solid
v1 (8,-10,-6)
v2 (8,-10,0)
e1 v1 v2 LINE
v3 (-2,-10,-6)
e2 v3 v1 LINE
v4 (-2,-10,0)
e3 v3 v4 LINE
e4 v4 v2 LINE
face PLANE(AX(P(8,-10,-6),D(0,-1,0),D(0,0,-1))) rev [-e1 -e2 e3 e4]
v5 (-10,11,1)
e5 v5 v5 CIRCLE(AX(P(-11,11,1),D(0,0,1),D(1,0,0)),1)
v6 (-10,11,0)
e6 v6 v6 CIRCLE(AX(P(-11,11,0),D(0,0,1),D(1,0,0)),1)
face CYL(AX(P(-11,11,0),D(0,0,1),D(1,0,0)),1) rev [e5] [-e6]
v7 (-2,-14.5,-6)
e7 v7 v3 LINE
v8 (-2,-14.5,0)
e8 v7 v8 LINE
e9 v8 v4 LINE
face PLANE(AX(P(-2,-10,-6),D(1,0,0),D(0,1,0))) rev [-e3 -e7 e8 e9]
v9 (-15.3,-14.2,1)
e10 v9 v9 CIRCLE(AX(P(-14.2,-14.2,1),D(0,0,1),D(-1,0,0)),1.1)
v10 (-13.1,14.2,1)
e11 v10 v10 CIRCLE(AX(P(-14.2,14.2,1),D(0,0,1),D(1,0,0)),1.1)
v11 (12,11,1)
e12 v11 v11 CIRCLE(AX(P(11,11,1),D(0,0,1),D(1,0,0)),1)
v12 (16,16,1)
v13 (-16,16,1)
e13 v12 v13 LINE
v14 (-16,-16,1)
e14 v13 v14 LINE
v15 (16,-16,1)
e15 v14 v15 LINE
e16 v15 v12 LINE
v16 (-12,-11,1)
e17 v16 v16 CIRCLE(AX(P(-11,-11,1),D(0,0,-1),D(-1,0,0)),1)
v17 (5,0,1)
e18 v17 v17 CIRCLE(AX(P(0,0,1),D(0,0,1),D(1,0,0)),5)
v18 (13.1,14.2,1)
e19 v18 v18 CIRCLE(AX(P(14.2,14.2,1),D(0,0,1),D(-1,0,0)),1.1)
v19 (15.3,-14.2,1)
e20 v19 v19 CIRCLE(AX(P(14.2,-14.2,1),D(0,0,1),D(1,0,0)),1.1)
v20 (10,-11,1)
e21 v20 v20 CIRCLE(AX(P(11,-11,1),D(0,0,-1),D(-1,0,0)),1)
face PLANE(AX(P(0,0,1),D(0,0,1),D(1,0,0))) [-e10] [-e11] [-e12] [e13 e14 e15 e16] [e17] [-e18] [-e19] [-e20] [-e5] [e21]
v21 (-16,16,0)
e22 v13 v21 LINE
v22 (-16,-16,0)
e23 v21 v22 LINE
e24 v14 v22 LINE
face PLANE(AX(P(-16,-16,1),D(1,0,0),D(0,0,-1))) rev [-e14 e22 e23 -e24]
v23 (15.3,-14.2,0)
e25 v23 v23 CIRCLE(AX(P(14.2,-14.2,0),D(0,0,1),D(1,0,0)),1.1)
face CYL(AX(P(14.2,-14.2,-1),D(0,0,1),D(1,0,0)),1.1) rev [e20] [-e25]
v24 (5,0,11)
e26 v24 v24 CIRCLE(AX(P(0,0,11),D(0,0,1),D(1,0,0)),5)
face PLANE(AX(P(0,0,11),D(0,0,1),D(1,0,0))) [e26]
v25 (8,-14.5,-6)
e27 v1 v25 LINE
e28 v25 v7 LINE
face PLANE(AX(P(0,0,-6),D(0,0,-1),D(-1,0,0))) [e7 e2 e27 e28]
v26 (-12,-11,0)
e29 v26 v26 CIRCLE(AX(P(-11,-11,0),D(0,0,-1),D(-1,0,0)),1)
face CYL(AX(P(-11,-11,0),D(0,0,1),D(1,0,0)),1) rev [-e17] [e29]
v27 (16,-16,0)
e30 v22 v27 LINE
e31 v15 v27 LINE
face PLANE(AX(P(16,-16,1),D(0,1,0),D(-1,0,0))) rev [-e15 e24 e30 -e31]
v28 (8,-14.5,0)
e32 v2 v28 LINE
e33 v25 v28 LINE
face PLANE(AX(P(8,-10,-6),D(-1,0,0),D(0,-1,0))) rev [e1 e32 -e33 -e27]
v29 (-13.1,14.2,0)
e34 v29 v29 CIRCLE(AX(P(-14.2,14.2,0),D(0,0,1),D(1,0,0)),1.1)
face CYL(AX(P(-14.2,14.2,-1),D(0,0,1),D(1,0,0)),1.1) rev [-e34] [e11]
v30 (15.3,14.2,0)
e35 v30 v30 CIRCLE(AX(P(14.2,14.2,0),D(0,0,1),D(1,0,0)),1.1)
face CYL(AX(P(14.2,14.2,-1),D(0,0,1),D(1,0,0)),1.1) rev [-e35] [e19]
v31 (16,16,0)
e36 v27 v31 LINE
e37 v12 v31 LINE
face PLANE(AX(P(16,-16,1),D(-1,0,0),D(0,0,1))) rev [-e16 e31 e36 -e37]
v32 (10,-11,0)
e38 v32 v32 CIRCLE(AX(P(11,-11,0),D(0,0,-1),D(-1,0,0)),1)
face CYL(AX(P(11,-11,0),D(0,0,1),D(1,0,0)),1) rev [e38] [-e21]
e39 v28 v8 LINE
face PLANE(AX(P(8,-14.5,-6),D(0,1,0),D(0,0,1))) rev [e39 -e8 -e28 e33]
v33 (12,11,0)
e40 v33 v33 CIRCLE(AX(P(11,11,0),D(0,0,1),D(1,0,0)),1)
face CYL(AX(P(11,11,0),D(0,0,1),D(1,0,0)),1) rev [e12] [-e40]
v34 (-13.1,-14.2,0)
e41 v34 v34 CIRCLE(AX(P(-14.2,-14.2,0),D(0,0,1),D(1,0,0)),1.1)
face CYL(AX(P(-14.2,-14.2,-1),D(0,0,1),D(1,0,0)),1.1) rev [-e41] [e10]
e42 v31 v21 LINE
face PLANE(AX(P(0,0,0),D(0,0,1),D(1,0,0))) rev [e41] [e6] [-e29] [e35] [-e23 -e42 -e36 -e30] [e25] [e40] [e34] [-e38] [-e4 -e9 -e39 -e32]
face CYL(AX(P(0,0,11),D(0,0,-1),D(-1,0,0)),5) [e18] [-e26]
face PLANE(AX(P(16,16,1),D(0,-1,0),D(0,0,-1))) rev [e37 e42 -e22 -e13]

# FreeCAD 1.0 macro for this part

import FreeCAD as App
import Part
import Sketcher
from FreeCAD import Vector
Q = App.Units.Quantity


def add_polygon(sketch, points):
    """Adds a closed chain of lines whose ends are joined by coincident constraints."""
    first, n = sketch.GeometryCount, len(points)
    for a, b in zip(points, points[1:] + points[:1]):
        sketch.addGeometry(Part.LineSegment(App.Vector(*a, 0), App.Vector(*b, 0)), False)
    for i in range(n):
        sketch.addConstraint(Sketcher.Constraint("Coincident", first + i, 2, first + (i + 1) % n, 1))

doc = App.newDocument("Part")
params = doc.addObject("Spreadsheet::Sheet", "Params")
for row, (alias, value) in enumerate([
    ("sketch1_width", "32 mm"),
    ("pad1_length", "1 mm"),
    ("sketch2_diameter", "2 mm"),
    ("pocket1_length", "1 mm"),
    ("sketch3_diameter", "10 mm"),
    ("pad2_length", "10 mm"),
    ("sketch4_width", "10 mm"),
    ("sketch4_height", "4.5 mm"),
    ("pad3_length", "6 mm"),
    ("sketch5_diameter", "2.2 mm"),
    ("pocket2_length", "2 mm"),
], start=1):
    params.set(f"A{row}", alias)
    params.set(f"B{row}", "=" + value)
    params.setAlias(f"B{row}", alias)

body = doc.addObject("PartDesign::Body", "Body")

sketch1 = body.newObject("Sketcher::SketchObject", "Sketch")
sketch1.AttachmentSupport = (doc.getObject("XY_Plane"), [""])
sketch1.MapMode = "FlatFace"
add_polygon(sketch1, [(-16, 16), (-16, -16), (16, -16), (16, 16)])
sketch1.addConstraint([
    Sketcher.Constraint("Vertical", 0),
    Sketcher.Constraint("Horizontal", 1),
    Sketcher.Constraint("Vertical", 2),
    Sketcher.Constraint("Horizontal", 3),
    Sketcher.Constraint("Symmetric", 0, 2, 2, 2, -1, 1),
    Sketcher.Constraint("Equal", 3, 0),
    Sketcher.Constraint("DistanceX", 1, 1, 1, 2, Q("32 mm")),
])
sketch1.setExpression("Constraints[10]", "Params.sketch1_width")
pad1 = body.newObject("PartDesign::Pad", "Pad")
pad1.Profile = sketch1
pad1.setExpression("Length", "Params.pad1_length")

sketch2 = body.newObject("Sketcher::SketchObject", "Sketch001")
sketch2.AttachmentSupport = (doc.getObject("XY_Plane"), [""])
sketch2.MapMode = "FlatFace"
sketch2.AttachmentOffset = App.Placement(Vector(0, 0, 1), App.Rotation())
sketch2.addGeometry([
    Part.Circle(Vector(-11, 11, 0), Vector(0, 0, 1), 1),
    Part.Circle(Vector(11, 11, 0), Vector(0, 0, 1), 1),
    Part.Circle(Vector(11, -11, 0), Vector(0, 0, 1), 1),
    Part.Circle(Vector(-11, -11, 0), Vector(0, 0, 1), 1),
], False)
sketch2.addConstraint([
    Sketcher.Constraint("Equal", 0, 1),
    Sketcher.Constraint("Equal", 1, 2),
    Sketcher.Constraint("Equal", 2, 3),
    Sketcher.Constraint("Symmetric", 0, 3, 2, 3, -1, 1),
    Sketcher.Constraint("Symmetric", 1, 3, 3, 3, -1, 1),
    Sketcher.Constraint("Symmetric", 0, 3, 1, 3, -2),
    Sketcher.Constraint("Diameter", 0, Q("2 mm")),
    Sketcher.Constraint("DistanceX", 0, 3, -1, 1, Q("11 mm")),
    Sketcher.Constraint("DistanceY", -1, 1, 0, 3, Q("11 mm")),
])
sketch2.setExpression("Constraints[6]", "Params.sketch2_diameter")
pocket1 = body.newObject("PartDesign::Pocket", "Pocket")
pocket1.Profile = sketch2
pocket1.setExpression("Length", "Params.pocket1_length")

sketch3 = body.newObject("Sketcher::SketchObject", "Sketch002")
sketch3.AttachmentSupport = (doc.getObject("XY_Plane"), [""])
sketch3.MapMode = "FlatFace"
sketch3.AttachmentOffset = App.Placement(Vector(0, 0, 1), App.Rotation())
sketch3.addGeometry(Part.Circle(Vector(0, 0, 0), Vector(0, 0, 1), 5), False)
sketch3.addConstraint([
    Sketcher.Constraint("Coincident", 0, 3, -1, 1),
    Sketcher.Constraint("Diameter", 0, Q("10 mm")),
])
sketch3.setExpression("Constraints[1]", "Params.sketch3_diameter")
pad2 = body.newObject("PartDesign::Pad", "Pad001")
pad2.Profile = sketch3
pad2.setExpression("Length", "Params.pad2_length")

sketch4 = body.newObject("Sketcher::SketchObject", "Sketch003")
sketch4.AttachmentSupport = (doc.getObject("XY_Plane"), [""])
sketch4.MapMode = "FlatFace"
add_polygon(sketch4, [(8, -10), (8, -14.5), (-2, -14.5), (-2, -10)])
sketch4.addConstraint([
    Sketcher.Constraint("Vertical", 0),
    Sketcher.Constraint("Horizontal", 1),
    Sketcher.Constraint("Vertical", 2),
    Sketcher.Constraint("Horizontal", 3),
    Sketcher.Constraint("DistanceX", 1, 2, 1, 1, Q("10 mm")),
    Sketcher.Constraint("DistanceY", 0, 2, 0, 1, Q("4.5 mm")),
    Sketcher.Constraint("DistanceX", -1, 1, 0, 2, Q("8 mm")),
    Sketcher.Constraint("DistanceY", 2, 2, -1, 1, Q("10 mm")),
])
sketch4.setExpression("Constraints[8]", "Params.sketch4_width")
sketch4.setExpression("Constraints[9]", "Params.sketch4_height")
pad3 = body.newObject("PartDesign::Pad", "Pad002")
pad3.Profile = sketch4
pad3.setExpression("Length", "Params.pad3_length")
pad3.Reversed = True

sketch5 = body.newObject("Sketcher::SketchObject", "Sketch004")
sketch5.AttachmentSupport = (doc.getObject("XY_Plane"), [""])
sketch5.MapMode = "FlatFace"
sketch5.AttachmentOffset = App.Placement(Vector(0, 0, 1), App.Rotation())
sketch5.addGeometry([
    Part.Circle(Vector(-14.2, 14.2, 0), Vector(0, 0, 1), 1.1),
    Part.Circle(Vector(14.2, 14.2, 0), Vector(0, 0, 1), 1.1),
    Part.Circle(Vector(14.2, -14.2, 0), Vector(0, 0, 1), 1.1),
    Part.Circle(Vector(-14.2, -14.2, 0), Vector(0, 0, 1), 1.1),
], False)
sketch5.addConstraint([
    Sketcher.Constraint("Equal", 0, 1),
    Sketcher.Constraint("Equal", 1, 2),
    Sketcher.Constraint("Equal", 2, 3),
    Sketcher.Constraint("Symmetric", 0, 3, 2, 3, -1, 1),
    Sketcher.Constraint("Symmetric", 1, 3, 3, 3, -1, 1),
    Sketcher.Constraint("Symmetric", 0, 3, 1, 3, -2),
    Sketcher.Constraint("Diameter", 0, Q("2.2 mm")),
    Sketcher.Constraint("DistanceX", 0, 3, -1, 1, Q("14.2 mm")),
    Sketcher.Constraint("DistanceY", -1, 1, 0, 3, Q("14.2 mm")),
])
sketch5.setExpression("Constraints[6]", "Params.sketch5_diameter")
pocket2 = body.newObject("PartDesign::Pocket", "Pocket001")
pocket2.Profile = sketch5
pocket2.setExpression("Length", "Params.pocket2_length")

doc.recompute()
